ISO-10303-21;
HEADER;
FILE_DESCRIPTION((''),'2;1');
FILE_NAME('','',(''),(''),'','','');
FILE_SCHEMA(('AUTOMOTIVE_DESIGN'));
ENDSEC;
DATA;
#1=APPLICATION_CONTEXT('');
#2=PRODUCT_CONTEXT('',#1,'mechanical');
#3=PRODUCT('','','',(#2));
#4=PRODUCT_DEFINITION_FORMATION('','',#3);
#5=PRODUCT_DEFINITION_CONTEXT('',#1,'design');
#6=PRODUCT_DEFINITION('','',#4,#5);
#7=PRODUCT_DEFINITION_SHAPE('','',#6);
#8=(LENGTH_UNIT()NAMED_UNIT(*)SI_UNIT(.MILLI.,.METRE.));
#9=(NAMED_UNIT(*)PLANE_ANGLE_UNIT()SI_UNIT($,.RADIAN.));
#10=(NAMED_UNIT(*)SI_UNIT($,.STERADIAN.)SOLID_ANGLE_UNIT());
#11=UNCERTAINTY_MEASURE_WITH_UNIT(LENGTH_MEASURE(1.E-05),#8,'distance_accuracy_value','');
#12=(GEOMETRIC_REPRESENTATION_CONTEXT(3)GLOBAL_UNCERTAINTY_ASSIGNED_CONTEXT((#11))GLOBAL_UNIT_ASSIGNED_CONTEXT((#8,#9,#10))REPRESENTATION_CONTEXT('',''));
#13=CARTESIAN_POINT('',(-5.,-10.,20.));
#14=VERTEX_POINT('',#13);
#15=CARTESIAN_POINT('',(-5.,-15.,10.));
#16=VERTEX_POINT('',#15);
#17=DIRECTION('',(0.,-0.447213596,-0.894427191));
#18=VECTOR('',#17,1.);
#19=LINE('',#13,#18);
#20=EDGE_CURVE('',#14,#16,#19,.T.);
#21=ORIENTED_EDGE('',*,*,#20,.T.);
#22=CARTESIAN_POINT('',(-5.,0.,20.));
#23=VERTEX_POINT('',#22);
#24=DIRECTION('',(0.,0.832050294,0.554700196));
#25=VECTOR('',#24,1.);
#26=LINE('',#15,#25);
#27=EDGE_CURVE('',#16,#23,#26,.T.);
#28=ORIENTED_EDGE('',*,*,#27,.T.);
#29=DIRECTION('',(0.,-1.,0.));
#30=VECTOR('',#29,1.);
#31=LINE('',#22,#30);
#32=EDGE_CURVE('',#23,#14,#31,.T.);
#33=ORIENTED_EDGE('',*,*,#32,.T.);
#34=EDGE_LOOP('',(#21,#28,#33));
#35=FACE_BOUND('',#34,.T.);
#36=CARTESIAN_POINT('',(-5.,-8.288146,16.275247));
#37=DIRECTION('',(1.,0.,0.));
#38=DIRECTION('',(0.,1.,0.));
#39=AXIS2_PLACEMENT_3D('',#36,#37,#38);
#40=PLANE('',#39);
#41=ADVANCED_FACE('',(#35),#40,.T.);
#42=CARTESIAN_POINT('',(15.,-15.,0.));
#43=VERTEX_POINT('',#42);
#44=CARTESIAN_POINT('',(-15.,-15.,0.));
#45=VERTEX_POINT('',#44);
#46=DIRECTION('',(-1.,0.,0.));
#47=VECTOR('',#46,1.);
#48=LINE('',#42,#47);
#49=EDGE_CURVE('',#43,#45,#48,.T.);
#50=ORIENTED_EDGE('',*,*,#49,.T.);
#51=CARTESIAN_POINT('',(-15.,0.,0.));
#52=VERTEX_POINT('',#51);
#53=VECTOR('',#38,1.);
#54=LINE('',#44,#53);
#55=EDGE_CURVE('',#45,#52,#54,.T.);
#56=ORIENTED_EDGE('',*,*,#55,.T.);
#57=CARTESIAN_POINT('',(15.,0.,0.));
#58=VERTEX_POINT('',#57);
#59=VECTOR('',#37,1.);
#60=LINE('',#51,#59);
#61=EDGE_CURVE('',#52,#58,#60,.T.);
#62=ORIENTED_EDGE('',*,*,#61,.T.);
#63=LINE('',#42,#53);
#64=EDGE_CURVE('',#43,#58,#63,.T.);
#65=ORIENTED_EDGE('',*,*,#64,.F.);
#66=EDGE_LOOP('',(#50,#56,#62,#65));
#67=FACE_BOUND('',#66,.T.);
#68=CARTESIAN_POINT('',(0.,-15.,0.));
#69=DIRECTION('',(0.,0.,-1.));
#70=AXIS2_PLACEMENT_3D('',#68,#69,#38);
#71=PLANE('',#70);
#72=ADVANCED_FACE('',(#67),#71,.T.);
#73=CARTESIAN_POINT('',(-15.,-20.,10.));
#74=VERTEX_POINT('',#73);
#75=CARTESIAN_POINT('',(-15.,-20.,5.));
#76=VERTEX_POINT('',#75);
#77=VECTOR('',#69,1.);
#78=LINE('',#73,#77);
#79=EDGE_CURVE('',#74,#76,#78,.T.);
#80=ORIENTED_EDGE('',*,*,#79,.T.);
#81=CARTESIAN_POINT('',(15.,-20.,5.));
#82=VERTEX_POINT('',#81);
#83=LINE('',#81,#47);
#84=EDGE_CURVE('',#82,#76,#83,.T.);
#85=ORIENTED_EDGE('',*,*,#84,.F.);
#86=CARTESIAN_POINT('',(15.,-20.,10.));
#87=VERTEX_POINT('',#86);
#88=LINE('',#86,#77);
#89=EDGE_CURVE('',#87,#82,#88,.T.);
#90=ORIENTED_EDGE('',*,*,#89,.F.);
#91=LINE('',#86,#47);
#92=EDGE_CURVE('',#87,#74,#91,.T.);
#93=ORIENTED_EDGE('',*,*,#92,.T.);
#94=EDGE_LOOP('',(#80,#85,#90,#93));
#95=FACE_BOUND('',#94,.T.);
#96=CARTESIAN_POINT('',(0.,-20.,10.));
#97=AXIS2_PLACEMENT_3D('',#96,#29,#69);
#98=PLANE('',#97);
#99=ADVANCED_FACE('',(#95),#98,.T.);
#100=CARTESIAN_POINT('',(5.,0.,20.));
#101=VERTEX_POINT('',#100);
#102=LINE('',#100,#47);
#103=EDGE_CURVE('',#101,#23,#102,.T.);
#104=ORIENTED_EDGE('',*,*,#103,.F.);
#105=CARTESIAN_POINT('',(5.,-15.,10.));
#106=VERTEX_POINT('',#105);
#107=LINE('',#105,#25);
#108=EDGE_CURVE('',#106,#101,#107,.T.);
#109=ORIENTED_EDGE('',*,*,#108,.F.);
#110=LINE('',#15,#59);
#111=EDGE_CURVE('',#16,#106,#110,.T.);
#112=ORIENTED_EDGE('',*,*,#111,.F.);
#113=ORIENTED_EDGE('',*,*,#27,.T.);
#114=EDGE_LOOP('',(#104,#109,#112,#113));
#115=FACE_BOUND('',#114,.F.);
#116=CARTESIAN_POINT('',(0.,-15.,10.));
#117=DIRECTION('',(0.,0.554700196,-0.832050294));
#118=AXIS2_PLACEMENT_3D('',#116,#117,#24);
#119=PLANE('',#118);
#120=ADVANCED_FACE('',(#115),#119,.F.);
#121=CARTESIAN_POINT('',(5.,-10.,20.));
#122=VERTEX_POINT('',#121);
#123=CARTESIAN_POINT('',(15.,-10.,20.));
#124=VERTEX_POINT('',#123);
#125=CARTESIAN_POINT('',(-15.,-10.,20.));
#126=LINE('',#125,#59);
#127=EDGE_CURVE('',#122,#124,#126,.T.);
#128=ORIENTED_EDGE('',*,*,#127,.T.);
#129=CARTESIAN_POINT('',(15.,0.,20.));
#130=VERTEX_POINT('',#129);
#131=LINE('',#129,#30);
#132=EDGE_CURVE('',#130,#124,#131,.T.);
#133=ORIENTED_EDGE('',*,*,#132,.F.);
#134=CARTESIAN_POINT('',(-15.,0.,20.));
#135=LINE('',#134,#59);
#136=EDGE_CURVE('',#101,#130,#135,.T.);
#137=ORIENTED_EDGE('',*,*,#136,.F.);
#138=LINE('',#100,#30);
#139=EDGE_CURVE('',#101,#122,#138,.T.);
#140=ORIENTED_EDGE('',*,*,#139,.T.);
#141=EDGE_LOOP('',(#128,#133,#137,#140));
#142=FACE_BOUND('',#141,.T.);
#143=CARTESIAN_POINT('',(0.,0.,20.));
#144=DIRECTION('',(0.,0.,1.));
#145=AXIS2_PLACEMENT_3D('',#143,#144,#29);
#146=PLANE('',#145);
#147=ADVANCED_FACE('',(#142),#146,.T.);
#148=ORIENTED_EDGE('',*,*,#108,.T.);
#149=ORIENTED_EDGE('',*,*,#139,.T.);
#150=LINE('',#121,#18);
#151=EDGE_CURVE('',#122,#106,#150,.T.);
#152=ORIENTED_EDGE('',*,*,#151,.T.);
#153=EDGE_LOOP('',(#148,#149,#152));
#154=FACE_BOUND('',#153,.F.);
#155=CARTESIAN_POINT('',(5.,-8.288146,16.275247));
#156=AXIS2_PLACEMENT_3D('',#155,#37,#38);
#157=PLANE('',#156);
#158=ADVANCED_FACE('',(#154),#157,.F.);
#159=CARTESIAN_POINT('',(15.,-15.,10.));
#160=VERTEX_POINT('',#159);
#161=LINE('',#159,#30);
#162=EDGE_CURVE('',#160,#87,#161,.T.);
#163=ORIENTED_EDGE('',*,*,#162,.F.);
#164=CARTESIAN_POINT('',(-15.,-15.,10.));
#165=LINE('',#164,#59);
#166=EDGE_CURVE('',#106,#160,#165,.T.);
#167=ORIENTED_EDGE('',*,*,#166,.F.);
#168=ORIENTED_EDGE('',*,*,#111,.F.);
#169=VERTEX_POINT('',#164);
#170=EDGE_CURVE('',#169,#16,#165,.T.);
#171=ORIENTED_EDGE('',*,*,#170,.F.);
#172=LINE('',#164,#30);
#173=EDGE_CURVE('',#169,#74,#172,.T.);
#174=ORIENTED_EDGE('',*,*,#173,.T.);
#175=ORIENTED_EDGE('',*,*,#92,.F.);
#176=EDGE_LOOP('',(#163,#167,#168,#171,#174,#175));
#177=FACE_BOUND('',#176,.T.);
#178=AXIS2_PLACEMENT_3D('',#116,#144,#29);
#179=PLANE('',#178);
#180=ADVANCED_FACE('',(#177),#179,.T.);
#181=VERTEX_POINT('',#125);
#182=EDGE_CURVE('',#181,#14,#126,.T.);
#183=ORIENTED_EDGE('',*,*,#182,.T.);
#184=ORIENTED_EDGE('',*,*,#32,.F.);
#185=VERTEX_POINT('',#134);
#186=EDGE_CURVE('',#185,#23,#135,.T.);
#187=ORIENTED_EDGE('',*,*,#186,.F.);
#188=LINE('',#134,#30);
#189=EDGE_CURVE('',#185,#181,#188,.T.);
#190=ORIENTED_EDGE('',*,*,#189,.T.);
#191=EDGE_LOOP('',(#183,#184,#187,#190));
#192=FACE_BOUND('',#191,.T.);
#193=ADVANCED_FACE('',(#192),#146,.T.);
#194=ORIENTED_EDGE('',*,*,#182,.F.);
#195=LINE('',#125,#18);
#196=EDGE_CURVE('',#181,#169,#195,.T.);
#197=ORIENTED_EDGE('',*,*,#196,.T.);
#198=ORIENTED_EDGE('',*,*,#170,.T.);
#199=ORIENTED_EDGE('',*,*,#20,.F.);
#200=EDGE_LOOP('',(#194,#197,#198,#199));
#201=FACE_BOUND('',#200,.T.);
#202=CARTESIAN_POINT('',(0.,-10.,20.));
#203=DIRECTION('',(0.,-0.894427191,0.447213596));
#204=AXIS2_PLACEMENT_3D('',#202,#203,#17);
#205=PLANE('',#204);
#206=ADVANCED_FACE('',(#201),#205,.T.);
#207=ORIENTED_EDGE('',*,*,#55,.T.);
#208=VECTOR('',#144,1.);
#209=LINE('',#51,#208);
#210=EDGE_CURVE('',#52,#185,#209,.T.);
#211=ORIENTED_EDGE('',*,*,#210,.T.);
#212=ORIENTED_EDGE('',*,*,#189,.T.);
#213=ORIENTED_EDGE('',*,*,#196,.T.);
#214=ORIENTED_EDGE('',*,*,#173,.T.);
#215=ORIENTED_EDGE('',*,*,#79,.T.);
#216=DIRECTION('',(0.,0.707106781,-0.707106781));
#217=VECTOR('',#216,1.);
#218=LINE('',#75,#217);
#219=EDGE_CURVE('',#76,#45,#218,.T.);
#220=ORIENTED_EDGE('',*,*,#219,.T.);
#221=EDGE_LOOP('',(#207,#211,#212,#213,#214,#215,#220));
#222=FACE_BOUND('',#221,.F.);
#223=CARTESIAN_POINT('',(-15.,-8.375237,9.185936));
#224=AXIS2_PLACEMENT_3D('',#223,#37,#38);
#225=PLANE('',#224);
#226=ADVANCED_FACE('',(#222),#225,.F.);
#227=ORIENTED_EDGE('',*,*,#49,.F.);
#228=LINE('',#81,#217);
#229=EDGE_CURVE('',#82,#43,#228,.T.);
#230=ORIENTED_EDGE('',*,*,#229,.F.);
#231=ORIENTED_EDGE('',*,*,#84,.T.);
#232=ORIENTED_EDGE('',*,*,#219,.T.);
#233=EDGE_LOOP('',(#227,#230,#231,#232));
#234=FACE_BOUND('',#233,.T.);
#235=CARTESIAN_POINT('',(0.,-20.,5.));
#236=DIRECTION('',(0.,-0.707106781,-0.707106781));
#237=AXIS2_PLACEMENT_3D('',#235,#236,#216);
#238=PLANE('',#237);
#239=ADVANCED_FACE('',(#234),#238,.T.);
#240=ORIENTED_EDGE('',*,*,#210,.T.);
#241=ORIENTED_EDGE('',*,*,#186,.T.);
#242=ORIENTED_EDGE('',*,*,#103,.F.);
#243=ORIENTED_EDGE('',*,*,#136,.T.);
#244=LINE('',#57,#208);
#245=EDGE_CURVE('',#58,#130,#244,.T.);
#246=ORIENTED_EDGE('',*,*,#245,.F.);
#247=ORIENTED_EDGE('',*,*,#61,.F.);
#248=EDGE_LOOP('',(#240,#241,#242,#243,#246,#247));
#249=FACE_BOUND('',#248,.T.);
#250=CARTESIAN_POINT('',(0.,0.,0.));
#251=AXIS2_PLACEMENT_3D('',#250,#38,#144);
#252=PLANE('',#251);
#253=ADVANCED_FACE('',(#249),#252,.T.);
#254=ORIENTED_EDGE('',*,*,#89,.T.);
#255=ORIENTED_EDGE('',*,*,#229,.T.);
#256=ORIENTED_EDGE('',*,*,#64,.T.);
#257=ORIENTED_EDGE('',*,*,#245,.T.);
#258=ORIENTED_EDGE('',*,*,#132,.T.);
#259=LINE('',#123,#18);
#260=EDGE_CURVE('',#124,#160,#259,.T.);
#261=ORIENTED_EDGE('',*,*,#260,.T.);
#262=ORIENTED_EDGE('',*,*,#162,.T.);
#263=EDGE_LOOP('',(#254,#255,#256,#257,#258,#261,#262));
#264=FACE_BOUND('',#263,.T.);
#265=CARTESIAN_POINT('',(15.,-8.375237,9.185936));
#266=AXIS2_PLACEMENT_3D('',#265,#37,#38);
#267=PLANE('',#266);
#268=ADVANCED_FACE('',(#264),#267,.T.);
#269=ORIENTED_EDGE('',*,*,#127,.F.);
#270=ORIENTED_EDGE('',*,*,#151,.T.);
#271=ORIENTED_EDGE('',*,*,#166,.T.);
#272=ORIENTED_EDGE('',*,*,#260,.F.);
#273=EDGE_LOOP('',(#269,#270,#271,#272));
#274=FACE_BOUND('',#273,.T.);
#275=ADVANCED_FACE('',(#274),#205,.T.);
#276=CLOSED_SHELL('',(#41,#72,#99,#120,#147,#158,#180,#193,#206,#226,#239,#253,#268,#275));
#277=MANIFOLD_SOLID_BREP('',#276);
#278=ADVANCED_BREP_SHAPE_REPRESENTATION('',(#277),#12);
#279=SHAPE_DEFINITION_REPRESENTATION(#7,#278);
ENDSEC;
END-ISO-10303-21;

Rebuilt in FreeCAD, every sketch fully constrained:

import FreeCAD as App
import Part
import Sketcher
Q = App.Units.Quantity


def add_polygon(sketch, points):
    """Adds a closed chain of lines whose ends are joined by coincident constraints."""
    first, n = sketch.GeometryCount, len(points)
    for a, b in zip(points, points[1:] + points[:1]):
        sketch.addGeometry(Part.LineSegment(App.Vector(*a, 0), App.Vector(*b, 0)), False)
    for i in range(n):
        sketch.addConstraint(Sketcher.Constraint("Coincident", first + i, 2, first + (i + 1) % n, 1))

doc = App.newDocument("Part")
body = doc.addObject("PartDesign::Body", "Body")

sketch1 = body.newObject("Sketcher::SketchObject", "Sketch")
sketch1.AttachmentSupport = (doc.getObject("YZ_Plane"), [""])
sketch1.MapMode = "FlatFace"
add_polygon(sketch1, [(-15, 0), (0, 0), (0, 20), (-10, 20), (-15, 10), (-20, 10), (-20, 5)])
sketch1.addConstraint([
    Sketcher.Constraint("Horizontal", 0),
    Sketcher.Constraint("Vertical", 1),
    Sketcher.Constraint("Horizontal", 2),
    Sketcher.Constraint("Horizontal", 4),
    Sketcher.Constraint("Vertical", 5),
    Sketcher.Constraint("Coincident", 0, 2, -1, 1),
    Sketcher.Constraint("Vertical", 3, 2, 6, 2),
    Sketcher.Constraint("Equal", 4, 5),
    Sketcher.Constraint("DistanceX", 0, 1, 0, 2, 15.0),
    Sketcher.Constraint("DistanceX", 2, 2, 2, 1, 10.0),
    Sketcher.Constraint("DistanceX", 4, 2, 4, 1, 5.0),
    Sketcher.Constraint("DistanceY", 1, 1, 1, 2, 20.0),
    Sketcher.Constraint("Angle", 6, Q("-45 deg")),
])
pad1 = body.newObject("PartDesign::Pad", "Pad")
pad1.Profile = sketch1
pad1.Length = 30
pad1.Midplane = True

sketch2 = body.newObject("Sketcher::SketchObject", "Sketch001")
sketch2.AttachmentSupport = (doc.getObject("YZ_Plane"), [""])
sketch2.MapMode = "FlatFace"
add_polygon(sketch2, [(-10, 20), (-15, 10), (0, 20)])
sketch2.addConstraint([
    Sketcher.Constraint("Horizontal", 2),
    Sketcher.Constraint("PointOnObject", 1, 2, -2),
    Sketcher.Constraint("DistanceX", 2, 2, 2, 1, 10.0),
    Sketcher.Constraint("DistanceX", 0, 2, -1, 1, 15.0),
    Sketcher.Constraint("DistanceY", -1, 1, 0, 2, 10.0),
    Sketcher.Constraint("DistanceY", -1, 1, 1, 2, 20.0),
])
pocket1 = body.newObject("PartDesign::Pocket", "Pocket")
pocket1.Profile = sketch2
pocket1.Length = 10
pocket1.Midplane = True

doc.recompute()
